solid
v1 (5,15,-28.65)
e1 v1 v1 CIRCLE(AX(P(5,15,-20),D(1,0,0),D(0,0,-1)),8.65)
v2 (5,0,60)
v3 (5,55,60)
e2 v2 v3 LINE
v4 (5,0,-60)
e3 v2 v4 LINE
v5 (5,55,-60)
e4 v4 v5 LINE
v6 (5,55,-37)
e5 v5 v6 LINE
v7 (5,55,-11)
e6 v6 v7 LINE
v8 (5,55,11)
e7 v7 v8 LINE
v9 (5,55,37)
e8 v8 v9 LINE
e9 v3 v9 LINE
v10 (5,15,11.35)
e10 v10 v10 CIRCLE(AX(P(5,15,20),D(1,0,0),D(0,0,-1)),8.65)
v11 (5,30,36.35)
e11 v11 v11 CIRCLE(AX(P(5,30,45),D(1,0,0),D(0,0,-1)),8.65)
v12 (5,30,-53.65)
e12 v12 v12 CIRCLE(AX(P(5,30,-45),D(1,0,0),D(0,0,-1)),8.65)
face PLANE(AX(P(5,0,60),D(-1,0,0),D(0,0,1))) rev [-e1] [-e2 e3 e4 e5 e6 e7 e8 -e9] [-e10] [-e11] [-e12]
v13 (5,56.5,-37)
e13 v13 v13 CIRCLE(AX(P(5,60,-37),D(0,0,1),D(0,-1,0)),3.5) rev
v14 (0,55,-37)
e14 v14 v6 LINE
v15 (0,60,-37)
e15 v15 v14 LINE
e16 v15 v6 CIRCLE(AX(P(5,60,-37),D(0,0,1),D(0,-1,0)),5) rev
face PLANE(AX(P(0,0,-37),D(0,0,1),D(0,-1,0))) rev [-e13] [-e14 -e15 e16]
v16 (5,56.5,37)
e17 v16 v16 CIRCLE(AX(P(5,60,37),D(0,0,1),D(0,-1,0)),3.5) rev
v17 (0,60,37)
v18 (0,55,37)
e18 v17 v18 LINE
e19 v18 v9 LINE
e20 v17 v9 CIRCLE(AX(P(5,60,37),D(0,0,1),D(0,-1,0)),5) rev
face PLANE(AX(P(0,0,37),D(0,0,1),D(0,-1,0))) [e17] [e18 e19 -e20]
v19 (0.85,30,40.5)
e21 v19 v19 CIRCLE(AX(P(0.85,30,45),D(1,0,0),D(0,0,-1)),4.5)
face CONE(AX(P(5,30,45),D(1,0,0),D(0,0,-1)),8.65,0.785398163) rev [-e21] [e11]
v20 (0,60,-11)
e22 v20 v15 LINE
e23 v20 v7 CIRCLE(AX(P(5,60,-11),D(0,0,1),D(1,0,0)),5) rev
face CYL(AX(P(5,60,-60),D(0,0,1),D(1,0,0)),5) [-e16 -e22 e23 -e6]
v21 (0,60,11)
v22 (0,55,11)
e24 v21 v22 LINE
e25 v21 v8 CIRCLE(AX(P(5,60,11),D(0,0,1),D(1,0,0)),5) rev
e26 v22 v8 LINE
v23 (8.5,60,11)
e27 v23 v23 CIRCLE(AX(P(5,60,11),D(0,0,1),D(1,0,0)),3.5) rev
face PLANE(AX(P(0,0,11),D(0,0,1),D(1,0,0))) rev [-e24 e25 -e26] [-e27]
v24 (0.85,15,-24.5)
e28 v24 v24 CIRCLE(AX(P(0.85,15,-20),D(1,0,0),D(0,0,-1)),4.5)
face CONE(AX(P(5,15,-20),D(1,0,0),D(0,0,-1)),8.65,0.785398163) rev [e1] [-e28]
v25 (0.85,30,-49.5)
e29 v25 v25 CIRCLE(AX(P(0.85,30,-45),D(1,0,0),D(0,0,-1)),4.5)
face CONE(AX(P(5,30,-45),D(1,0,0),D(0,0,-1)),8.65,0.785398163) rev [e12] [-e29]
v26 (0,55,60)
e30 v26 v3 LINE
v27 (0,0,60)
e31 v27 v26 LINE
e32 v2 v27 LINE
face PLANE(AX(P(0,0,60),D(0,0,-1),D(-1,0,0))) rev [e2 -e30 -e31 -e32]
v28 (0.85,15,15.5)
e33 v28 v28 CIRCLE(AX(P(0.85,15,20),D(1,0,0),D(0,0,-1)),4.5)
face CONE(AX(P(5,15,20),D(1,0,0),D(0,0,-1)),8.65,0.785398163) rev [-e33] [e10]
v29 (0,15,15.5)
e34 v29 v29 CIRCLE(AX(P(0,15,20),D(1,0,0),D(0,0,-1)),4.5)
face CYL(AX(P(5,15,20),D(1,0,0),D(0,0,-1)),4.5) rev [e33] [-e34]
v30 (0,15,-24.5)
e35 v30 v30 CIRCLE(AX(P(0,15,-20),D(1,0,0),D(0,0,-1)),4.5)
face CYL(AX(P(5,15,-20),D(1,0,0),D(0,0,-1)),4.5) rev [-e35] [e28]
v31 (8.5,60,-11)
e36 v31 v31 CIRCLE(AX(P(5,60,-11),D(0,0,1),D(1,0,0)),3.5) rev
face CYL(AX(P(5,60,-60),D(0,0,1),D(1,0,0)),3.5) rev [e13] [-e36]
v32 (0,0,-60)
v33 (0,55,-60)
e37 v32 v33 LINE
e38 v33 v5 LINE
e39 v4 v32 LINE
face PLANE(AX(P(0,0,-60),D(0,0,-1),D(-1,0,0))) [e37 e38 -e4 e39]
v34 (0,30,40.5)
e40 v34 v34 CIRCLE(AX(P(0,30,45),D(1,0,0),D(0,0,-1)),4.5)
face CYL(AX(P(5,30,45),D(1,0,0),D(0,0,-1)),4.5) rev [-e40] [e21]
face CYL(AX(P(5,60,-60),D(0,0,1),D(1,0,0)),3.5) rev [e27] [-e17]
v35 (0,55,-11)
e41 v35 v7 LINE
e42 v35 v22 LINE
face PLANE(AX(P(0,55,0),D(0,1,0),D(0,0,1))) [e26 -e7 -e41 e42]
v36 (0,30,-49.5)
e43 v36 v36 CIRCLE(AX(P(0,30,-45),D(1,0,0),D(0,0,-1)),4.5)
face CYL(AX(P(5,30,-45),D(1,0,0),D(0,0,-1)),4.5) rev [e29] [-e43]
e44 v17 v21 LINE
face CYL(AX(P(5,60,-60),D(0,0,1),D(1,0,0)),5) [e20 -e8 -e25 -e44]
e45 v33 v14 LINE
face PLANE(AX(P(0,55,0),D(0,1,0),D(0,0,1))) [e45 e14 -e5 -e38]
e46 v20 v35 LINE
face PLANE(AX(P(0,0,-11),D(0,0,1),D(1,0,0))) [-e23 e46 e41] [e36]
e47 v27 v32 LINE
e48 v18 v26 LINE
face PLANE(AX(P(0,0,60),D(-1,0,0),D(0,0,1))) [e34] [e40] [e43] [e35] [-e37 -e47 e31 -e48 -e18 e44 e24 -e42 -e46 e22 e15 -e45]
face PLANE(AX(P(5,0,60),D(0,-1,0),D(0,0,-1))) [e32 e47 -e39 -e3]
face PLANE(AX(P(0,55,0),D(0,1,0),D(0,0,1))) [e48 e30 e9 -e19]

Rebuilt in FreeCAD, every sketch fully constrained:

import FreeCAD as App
import Part
import Sketcher
from FreeCAD import Vector
Q = App.Units.Quantity

doc = App.newDocument("Part")
body = doc.addObject("PartDesign::Body", "Body")

# Sketch on XY plane
sketch1 = body.newObject("Sketcher::SketchObject", "Sketch")
sketch1.AttachmentSupport = (doc.getObject("XY_Plane"), [""])
sketch1.MapMode = "FlatFace"
sketch1.addGeometry([
    Part.LineSegment(Vector(0, 60, 0), Vector(0, 0, 0)),
    Part.LineSegment(Vector(0, 0, 0), Vector(5, 0, 0)),
    Part.LineSegment(Vector(5, 0, 0), Vector(5, 60, 0)),
    Part.LineSegment(Vector(5, 60, 0), Vector(0, 60, 0)),
], False)
sketch1.addConstraint([
    Sketcher.Constraint("Coincident", 0, 2, 1, 1),
    Sketcher.Constraint("Coincident", 1, 2, 2, 1),
    Sketcher.Constraint("Coincident", 2, 2, 3, 1),
    Sketcher.Constraint("Coincident", 3, 2, 0, 1),
    Sketcher.Constraint("Vertical", 0),
    Sketcher.Constraint("Horizontal", 1),
    Sketcher.Constraint("Vertical", 2),
    Sketcher.Constraint("Horizontal", 3),
    Sketcher.Constraint("Coincident", 0, 2, -1, 1),
    Sketcher.Constraint("DistanceX", 1, 1, 1, 2, 5.0),
    Sketcher.Constraint("DistanceY", 0, 2, 0, 1, 60.0),
])
pad1 = body.newObject("PartDesign::Pad", "Pad")
pad1.Profile = sketch1
pad1.Length = 120
pad1.Midplane = True

# Sketch on XY plane
sketch2 = body.newObject("Sketcher::SketchObject", "Sketch001")
sketch2.AttachmentSupport = (doc.getObject("XY_Plane"), [""])
sketch2.MapMode = "FlatFace"
sketch2.AttachmentOffset = App.Placement(Vector(0, 0, 60), App.Rotation())
sketch2.addGeometry(Part.Circle(Vector(5, 60, 0), Vector(0, 0, 1), 5), False)
sketch2.addConstraint([
    Sketcher.Constraint("Diameter", 0, 10.0),
    Sketcher.Constraint("DistanceX", -1, 1, 0, 3, 5.0),
    Sketcher.Constraint("DistanceY", -1, 1, 0, 3, 60.0),
])

# Sketch on XZ plane
sketch3 = body.newObject("Sketcher::SketchObject", "Sketch002")
sketch3.AttachmentSupport = (doc.getObject("XZ_Plane"), [""])
sketch3.MapMode = "FlatFace"
sketch3.AttachmentOffset = App.Placement(Vector(0, 0, -60), App.Rotation())
sketch3.addGeometry(Part.LineSegment(Vector(5, 60, 0), Vector(5, -60, 0)), False)
sketch3.addConstraint([
    Sketcher.Constraint("Vertical", 0),
    Sketcher.Constraint("DistanceY", 0, 2, 0, 1, 120.0),
    Sketcher.Constraint("DistanceX", -1, 1, 0, 1, 5.0),
    Sketcher.Constraint("DistanceY", -1, 1, 0, 1, 60.0),
])
doc.recompute()

additivepipe = body.newObject("PartDesign::AdditivePipe", "AdditivePipe")
additivepipe.Profile = sketch2
additivepipe.Spine = (sketch3, ["Edge1"])

# Sketch on XY plane
sketch4 = body.newObject("Sketcher::SketchObject", "Sketch003")
sketch4.AttachmentSupport = (doc.getObject("XY_Plane"), [""])
sketch4.MapMode = "FlatFace"
sketch4.AttachmentOffset = App.Placement(Vector(0, 0, 60), App.Rotation())
sketch4.addGeometry(Part.Circle(Vector(5, 60, 0), Vector(0, 0, 1), 3.5), False)
sketch4.addConstraint([
    Sketcher.Constraint("Diameter", 0, 7.0),
    Sketcher.Constraint("DistanceX", -1, 1, 0, 3, 5.0),
    Sketcher.Constraint("DistanceY", -1, 1, 0, 3, 60.0),
])
pocket1 = body.newObject("PartDesign::Pocket", "Pocket")
pocket1.Profile = sketch4
pocket1.Type = "ThroughAll"

# Sketch on XZ plane
sketch5 = body.newObject("Sketcher::SketchObject", "Sketch004")
sketch5.AttachmentSupport = (doc.getObject("XZ_Plane"), [""])
sketch5.MapMode = "FlatFace"
sketch5.AttachmentOffset = App.Placement(Vector(0, 0, -30), App.Rotation())
sketch5.addGeometry([
    Part.LineSegment(Vector(0, 45, 0), Vector(5, 45, 0)),  # 0
    Part.LineSegment(Vector(5, 45, 0), Vector(5, 36.35, 0)),  # 1
    Part.LineSegment(Vector(5, 36.35, 0), Vector(0.85, 40.5, 0)),  # 2
    Part.LineSegment(Vector(0.85, 40.5, 0), Vector(0, 40.5, 0)),  # 3
    Part.LineSegment(Vector(0, 40.5, 0), Vector(0, 45, 0)),  # 4
], False)
sketch5.addGeometry(Part.LineSegment(Vector(5, 45, 0), Vector(0, 45, 0)), True)  # axis
sketch5.addConstraint([
    Sketcher.Constraint("Coincident", 0, 2, 1, 1),
    Sketcher.Constraint("Coincident", 1, 2, 2, 1),
    Sketcher.Constraint("Coincident", 2, 2, 3, 1),
    Sketcher.Constraint("Coincident", 3, 2, 4, 1),
    Sketcher.Constraint("Coincident", 4, 2, 0, 1),
    Sketcher.Constraint("Horizontal", 0),
    Sketcher.Constraint("Vertical", 1),
    Sketcher.Constraint("Horizontal", 3),
    Sketcher.Constraint("Vertical", 4),
    Sketcher.Constraint("Horizontal", 5),
    Sketcher.Constraint("Coincident", 5, 1, 0, 2),
    Sketcher.Constraint("PointOnObject", 3, 2, -2),
    Sketcher.Constraint("PointOnObject", 5, 2, -2),
    Sketcher.Constraint("DistanceX", 0, 1, 0, 2, 5.0),
    Sketcher.Constraint("Angle", 2, Q("135 deg")),
    Sketcher.Constraint("DistanceY", 4, 1, 4, 2, 4.5),
    Sketcher.Constraint("DistanceY", -1, 1, 0, 2, 45.0),
    Sketcher.Constraint("DistanceX", 3, 2, 3, 1, 0.85),
])
groove = body.newObject("PartDesign::Groove", "Groove")
groove.Profile = sketch5
groove.ReferenceAxis = (sketch5, ["Axis0"])
groove.Angle = 360
doc.recompute()

datumline = body.newObject("PartDesign::Line", "DatumLine")
datumline.Placement = App.Placement(Vector(0, 0, 0), App.Rotation(Vector(0, 0, 1), Vector(0, -0.514495755, -0.857492926)))
linearpattern = body.newObject("PartDesign::LinearPattern", "LinearPattern")
linearpattern.Originals = [groove]
linearpattern.Direction = (datumline, [""])
linearpattern.Mode = "offset"
linearpattern.Offset = 29.154759
linearpattern.Occurrences = 2
body.Tip = linearpattern
doc.recompute()

mirrored = body.newObject("PartDesign::Mirrored", "Mirrored")
mirrored.Originals = [groove]
mirrored.MirrorPlane = (doc.getObject("XY_Plane"), [""])
body.Tip = mirrored

# Sketch on XZ plane
sketch6 = body.newObject("Sketcher::SketchObject", "Sketch005")
sketch6.AttachmentSupport = (doc.getObject("XZ_Plane"), [""])
sketch6.MapMode = "FlatFace"
sketch6.AttachmentOffset = App.Placement(Vector(0, 0, -15), App.Rotation())
sketch6.addGeometry([
    Part.LineSegment(Vector(5, -20, 0), Vector(0, -20, 0)),  # 0
    Part.LineSegment(Vector(0, -20, 0), Vector(0, -15.5, 0)),  # 1
    Part.LineSegment(Vector(0, -15.5, 0), Vector(0.85, -15.5, 0)),  # 2
    Part.LineSegment(Vector(0.85, -15.5, 0), Vector(5, -11.35, 0)),  # 3
    Part.LineSegment(Vector(5, -11.35, 0), Vector(5, -20, 0)),  # 4
], False)
sketch6.addGeometry(Part.LineSegment(Vector(0, -20, 0), Vector(5, -20, 0)), True)  # axis
sketch6.addConstraint([
    Sketcher.Constraint("Coincident", 0, 2, 1, 1),
    Sketcher.Constraint("Coincident", 1, 2, 2, 1),
    Sketcher.Constraint("Coincident", 2, 2, 3, 1),
    Sketcher.Constraint("Coincident", 3, 2, 4, 1),
    Sketcher.Constraint("Coincident", 4, 2, 0, 1),
    Sketcher.Constraint("Horizontal", 0),
    Sketcher.Constraint("Vertical", 1),
    Sketcher.Constraint("Horizontal", 2),
    Sketcher.Constraint("Vertical", 4),
    Sketcher.Constraint("Horizontal", 5),
    Sketcher.Constraint("Coincident", 5, 1, 0, 2),
    Sketcher.Constraint("PointOnObject", 0, 2, -2),
    Sketcher.Constraint("Vertical", 3, 2, 5, 2),
    Sketcher.Constraint("DistanceX", 0, 2, 0, 1, 5.0),
    Sketcher.Constraint("Angle", 3, Q("45 deg")),
    Sketcher.Constraint("DistanceY", 1, 1, 1, 2, 4.5),
    Sketcher.Constraint("DistanceY", 0, 2, -1, 1, 20.0),
    Sketcher.Constraint("DistanceX", 2, 1, 2, 2, 0.85),
])
groove2 = body.newObject("PartDesign::Groove", "Groove001")
groove2.Profile = sketch6
groove2.ReferenceAxis = (sketch6, ["Axis0"])
groove2.Angle = 360

# Sketch on YZ plane
sketch7 = body.newObject("Sketcher::SketchObject", "Sketch006")
sketch7.AttachmentSupport = (doc.getObject("YZ_Plane"), [""])
sketch7.MapMode = "FlatFace"
sketch7.AttachmentOffset = App.Placement(Vector(0, 0, 5), App.Rotation())
sketch7.addGeometry([
    Part.LineSegment(Vector(65, -37, 0), Vector(55, -37, 0)),  # 0
    Part.LineSegment(Vector(55, -37, 0), Vector(55, -60, 0)),  # 1
    Part.LineSegment(Vector(55, -60, 0), Vector(65, -60, 0)),  # 2
    Part.LineSegment(Vector(65, -60, 0), Vector(65, -37, 0)),  # 3
    Part.LineSegment(Vector(65, 11, 0), Vector(55, 11, 0)),  # 4
    Part.LineSegment(Vector(55, 11, 0), Vector(55, -11, 0)),  # 5
    Part.LineSegment(Vector(55, -11, 0), Vector(65, -11, 0)),  # 6
    Part.LineSegment(Vector(65, -11, 0), Vector(65, 11, 0)),  # 7
    Part.LineSegment(Vector(65, 60, 0), Vector(55, 60, 0)),  # 8
    Part.LineSegment(Vector(55, 60, 0), Vector(55, 37, 0)),  # 9
    Part.LineSegment(Vector(55, 37, 0), Vector(65, 37, 0)),  # 10
    Part.LineSegment(Vector(65, 37, 0), Vector(65, 60, 0)),  # 11
], False)
sketch7.addConstraint([
    Sketcher.Constraint("Coincident", 0, 2, 1, 1),
    Sketcher.Constraint("Coincident", 1, 2, 2, 1),
    Sketcher.Constraint("Coincident", 2, 2, 3, 1),
    Sketcher.Constraint("Coincident", 3, 2, 0, 1),
    Sketcher.Constraint("Coincident", 4, 2, 5, 1),
    Sketcher.Constraint("Coincident", 5, 2, 6, 1),
    Sketcher.Constraint("Coincident", 6, 2, 7, 1),
    Sketcher.Constraint("Coincident", 7, 2, 4, 1),
    Sketcher.Constraint("Coincident", 8, 2, 9, 1),
    Sketcher.Constraint("Coincident", 9, 2, 10, 1),
    Sketcher.Constraint("Coincident", 10, 2, 11, 1),
    Sketcher.Constraint("Coincident", 11, 2, 8, 1),
    Sketcher.Constraint("Horizontal", 0),
    Sketcher.Constraint("Vertical", 1),
    Sketcher.Constraint("Horizontal", 2),
    Sketcher.Constraint("Vertical", 3),
    Sketcher.Constraint("Horizontal", 4),
    Sketcher.Constraint("Vertical", 5),
    Sketcher.Constraint("Horizontal", 6),
    Sketcher.Constraint("Vertical", 7),
    Sketcher.Constraint("Horizontal", 8),
    Sketcher.Constraint("Vertical", 9),
    Sketcher.Constraint("Horizontal", 10),
    Sketcher.Constraint("Vertical", 11),
    Sketcher.Constraint("Symmetric", 1, 2, 8, 2, -1),
    Sketcher.Constraint("Symmetric", 3, 2, 10, 2, -1),
    Sketcher.Constraint("Vertical", 1, 2, 4, 2),
    Sketcher.Constraint("Vertical", 3, 2, 6, 2),
    Sketcher.Constraint("DistanceX", 0, 2, 0, 1, 10.0),
    Sketcher.Constraint("DistanceY", 1, 2, 1, 1, 23.0),
    Sketcher.Constraint("DistanceY", 5, 2, 5, 1, 22.0),
    Sketcher.Constraint("DistanceX", -1, 1, 0, 2, 55.0),
    Sketcher.Constraint("DistanceY", 0, 2, -1, 1, 37.0),
    Sketcher.Constraint("DistanceY", -1, 1, 4, 2, 11.0),
])
pocket2 = body.newObject("PartDesign::Pocket", "Pocket001")
pocket2.Profile = sketch7
pocket2.Type = "ThroughAll"
pocket2.Midplane = True

doc.recompute()
